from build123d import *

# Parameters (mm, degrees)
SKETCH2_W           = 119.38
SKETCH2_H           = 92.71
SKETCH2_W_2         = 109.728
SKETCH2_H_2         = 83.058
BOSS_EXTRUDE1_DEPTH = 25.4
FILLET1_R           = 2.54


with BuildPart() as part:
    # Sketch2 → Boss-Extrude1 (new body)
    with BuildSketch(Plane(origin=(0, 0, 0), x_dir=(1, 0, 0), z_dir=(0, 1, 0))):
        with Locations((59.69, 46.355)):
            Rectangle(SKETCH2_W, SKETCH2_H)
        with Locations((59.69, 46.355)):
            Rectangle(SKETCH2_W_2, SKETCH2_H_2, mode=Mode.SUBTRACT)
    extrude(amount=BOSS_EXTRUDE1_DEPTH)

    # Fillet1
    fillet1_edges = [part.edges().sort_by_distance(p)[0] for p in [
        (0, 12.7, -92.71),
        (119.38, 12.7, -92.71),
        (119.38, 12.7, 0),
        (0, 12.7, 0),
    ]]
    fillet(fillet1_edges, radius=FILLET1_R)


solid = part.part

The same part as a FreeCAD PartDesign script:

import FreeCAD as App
import Part
import Sketcher
from FreeCAD import Vector
Q = App.Units.Quantity


def edges_at(feature, points):
    """Names of the edges that pass closest to the given points."""
    edges = feature.Shape.Edges
    near = lambda p: min(range(len(edges)), key=lambda i: edges[i].distToShape(Part.Vertex(*p))[0])
    return sorted({f"Edge{near(p) + 1}" for p in points})

doc = App.newDocument("Part")
body = doc.addObject("PartDesign::Body", "Body")

sketch1 = body.newObject("Sketcher::SketchObject", "Sketch")
sketch1.AttachmentSupport = (doc.getObject("XZ_Plane"), [""])
sketch1.MapMode = "FlatFace"
sketch1.addGeometry(Part.LineSegment(Vector(0, -93, 0), Vector(0, 0, 0)), False)
sketch1.addGeometry(Part.LineSegment(Vector(0, 0, 0), Vector(119, 0, 0)), False)
sketch1.addGeometry(Part.LineSegment(Vector(119, 0, 0), Vector(119, -93, 0)), False)
sketch1.addGeometry(Part.LineSegment(Vector(119, -93, 0), Vector(0, -93, 0)), False)
sketch1.addGeometry(Part.LineSegment(Vector(115, -5, 0), Vector(5, -5, 0)), False)
sketch1.addGeometry(Part.LineSegment(Vector(5, -5, 0), Vector(5, -88, 0)), False)
sketch1.addGeometry(Part.LineSegment(Vector(5, -88, 0), Vector(115, -88, 0)), False)
sketch1.addGeometry(Part.LineSegment(Vector(115, -88, 0), Vector(115, -5, 0)), False)
sketch1.addConstraint(Sketcher.Constraint("Coincident", 0, 2, 1, 1))
sketch1.addConstraint(Sketcher.Constraint("Coincident", 1, 2, 2, 1))
sketch1.addConstraint(Sketcher.Constraint("Coincident", 2, 2, 3, 1))
sketch1.addConstraint(Sketcher.Constraint("Coincident", 3, 2, 0, 1))
sketch1.addConstraint(Sketcher.Constraint("Coincident", 4, 2, 5, 1))
sketch1.addConstraint(Sketcher.Constraint("Coincident", 5, 2, 6, 1))
sketch1.addConstraint(Sketcher.Constraint("Coincident", 6, 2, 7, 1))
sketch1.addConstraint(Sketcher.Constraint("Coincident", 7, 2, 4, 1))
sketch1.addConstraint(Sketcher.Constraint("Vertical", 0))
sketch1.addConstraint(Sketcher.Constraint("Horizontal", 1))
sketch1.addConstraint(Sketcher.Constraint("Vertical", 2))
sketch1.addConstraint(Sketcher.Constraint("Horizontal", 3))
sketch1.addConstraint(Sketcher.Constraint("Horizontal", 4))
sketch1.addConstraint(Sketcher.Constraint("Vertical", 5))
sketch1.addConstraint(Sketcher.Constraint("Horizontal", 6))
sketch1.addConstraint(Sketcher.Constraint("Vertical", 7))
sketch1.addConstraint(Sketcher.Constraint("Coincident", 0, 2, -1, 1))
sketch1.addConstraint(Sketcher.Constraint("DistanceX", 1, 1, 1, 2, Q("4.7 in")))
sketch1.addConstraint(Sketcher.Constraint("DistanceX", 4, 2, 4, 1, Q("4.32 in")))
sketch1.addConstraint(Sketcher.Constraint("DistanceY", 0, 1, 0, 2, Q("3.65 in")))
sketch1.addConstraint(Sketcher.Constraint("DistanceY", 5, 2, 5, 1, Q("3.27 in")))
sketch1.addConstraint(Sketcher.Constraint("DistanceX", -1, 1, 4, 2, Q("0.19 in")))
sketch1.addConstraint(Sketcher.Constraint("DistanceY", 4, 2, -1, 1, Q("0.19 in")))
pad1 = body.newObject("PartDesign::Pad", "Pad")
pad1.Profile = sketch1
pad1.Length = Q("1 in")
pad1.Reversed = True
doc.recompute()

fillet = body.newObject("PartDesign::Fillet", "Fillet")
fillet.Base = (pad1, edges_at(pad1, [
    (0, 12.7, -92.71),
    (119.38, 12.7, -92.71),
    (119.38, 12.7, 0),
    (0, 12.7, 0),
]))
fillet.Radius = Q("0.1 in")

doc.recompute()
